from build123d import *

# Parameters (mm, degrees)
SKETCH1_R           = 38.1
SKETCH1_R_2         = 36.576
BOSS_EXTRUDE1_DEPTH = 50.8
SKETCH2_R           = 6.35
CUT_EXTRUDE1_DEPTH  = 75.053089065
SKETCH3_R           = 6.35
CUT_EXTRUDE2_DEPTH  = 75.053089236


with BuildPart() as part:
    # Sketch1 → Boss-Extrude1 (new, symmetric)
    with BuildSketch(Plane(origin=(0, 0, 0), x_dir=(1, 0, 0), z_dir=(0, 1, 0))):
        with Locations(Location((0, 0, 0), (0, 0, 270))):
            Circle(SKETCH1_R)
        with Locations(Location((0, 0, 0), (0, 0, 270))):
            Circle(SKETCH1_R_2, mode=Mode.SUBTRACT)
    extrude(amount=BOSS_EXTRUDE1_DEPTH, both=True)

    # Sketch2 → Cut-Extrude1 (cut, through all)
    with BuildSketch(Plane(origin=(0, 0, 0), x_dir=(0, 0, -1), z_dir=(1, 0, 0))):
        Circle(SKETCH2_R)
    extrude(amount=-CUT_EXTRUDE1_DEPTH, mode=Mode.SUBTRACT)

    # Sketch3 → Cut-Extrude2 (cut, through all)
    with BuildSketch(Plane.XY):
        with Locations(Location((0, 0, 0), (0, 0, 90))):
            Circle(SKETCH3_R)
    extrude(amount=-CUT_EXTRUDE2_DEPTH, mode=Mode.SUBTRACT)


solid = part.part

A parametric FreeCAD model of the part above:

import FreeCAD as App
import Part
import Sketcher

V = App.Vector
Q = App.Units.Quantity

doc = App.newDocument("Part")
params = doc.addObject("Spreadsheet::Sheet", "Params")
for row, (alias, value) in enumerate([
    ("sketch1_diameter", "3 in"),
    ("sketch1_diameter2", "2.88 in"),
    ("pad1_length", "4 in"),
    ("sketch2_diameter", "0.5 in"),
    ("sketch3_diameter", "0.5 in"),
], start=1):
    params.set(f"A{row}", alias)
    params.set(f"B{row}", "=" + value)
    params.setAlias(f"B{row}", alias)

body = doc.addObject("PartDesign::Body", "Body")

# Sketch on XZ plane
sketch1 = body.newObject("Sketcher::SketchObject", "Sketch")
sketch1.AttachmentSupport = (doc.getObject("XZ_Plane"), [""])
sketch1.MapMode = "FlatFace"
sketch1.addGeometry([
    Part.Circle(V(0, 0, 0), V(0, 0, 1), 38),
    Part.Circle(V(0, 0, 0), V(0, 0, 1), 37),
], False)
sketch1.addConstraint([
    Sketcher.Constraint("Coincident", 0, 3, -1, 1),
    Sketcher.Constraint("Coincident", 1, 3, -1, 1),
    Sketcher.Constraint("Diameter", 0, Q("3 in")),
    Sketcher.Constraint("Diameter", 1, Q("2.88 in")),
])
sketch1.setExpression("Constraints[2]", "Params.sketch1_diameter")
sketch1.setExpression("Constraints[3]", "Params.sketch1_diameter2")
pad1 = body.newObject("PartDesign::Pad", "Pad")
pad1.Profile = sketch1
pad1.setExpression("Length", "Params.pad1_length")
pad1.Midplane = True

# Sketch on YZ plane
sketch2 = body.newObject("Sketcher::SketchObject", "Sketch001")
sketch2.AttachmentSupport = (doc.getObject("YZ_Plane"), [""])
sketch2.MapMode = "FlatFace"
sketch2.addGeometry(Part.Circle(V(0, 0, 0), V(0, 0, 1), 6), False)
sketch2.addConstraint([
    Sketcher.Constraint("Coincident", 0, 3, -1, 1),
    Sketcher.Constraint("Diameter", 0, Q("0.5 in")),
])
sketch2.setExpression("Constraints[1]", "Params.sketch2_diameter")
pocket1 = body.newObject("PartDesign::Pocket", "Pocket")
pocket1.Profile = sketch2
pocket1.Type = "ThroughAll"

# Sketch on XY plane
sketch3 = body.newObject("Sketcher::SketchObject", "Sketch002")
sketch3.AttachmentSupport = (doc.getObject("XY_Plane"), [""])
sketch3.MapMode = "FlatFace"
sketch3.addGeometry(Part.Circle(V(0, 0, 0), V(0, 0, 1), 6), False)
sketch3.addConstraint([
    Sketcher.Constraint("Coincident", 0, 3, -1, 1),
    Sketcher.Constraint("Diameter", 0, Q("0.5 in")),
])
sketch3.setExpression("Constraints[1]", "Params.sketch3_diameter")
pocket2 = body.newObject("PartDesign::Pocket", "Pocket001")
pocket2.Profile = sketch3
pocket2.Type = "ThroughAll"

doc.recompute()
